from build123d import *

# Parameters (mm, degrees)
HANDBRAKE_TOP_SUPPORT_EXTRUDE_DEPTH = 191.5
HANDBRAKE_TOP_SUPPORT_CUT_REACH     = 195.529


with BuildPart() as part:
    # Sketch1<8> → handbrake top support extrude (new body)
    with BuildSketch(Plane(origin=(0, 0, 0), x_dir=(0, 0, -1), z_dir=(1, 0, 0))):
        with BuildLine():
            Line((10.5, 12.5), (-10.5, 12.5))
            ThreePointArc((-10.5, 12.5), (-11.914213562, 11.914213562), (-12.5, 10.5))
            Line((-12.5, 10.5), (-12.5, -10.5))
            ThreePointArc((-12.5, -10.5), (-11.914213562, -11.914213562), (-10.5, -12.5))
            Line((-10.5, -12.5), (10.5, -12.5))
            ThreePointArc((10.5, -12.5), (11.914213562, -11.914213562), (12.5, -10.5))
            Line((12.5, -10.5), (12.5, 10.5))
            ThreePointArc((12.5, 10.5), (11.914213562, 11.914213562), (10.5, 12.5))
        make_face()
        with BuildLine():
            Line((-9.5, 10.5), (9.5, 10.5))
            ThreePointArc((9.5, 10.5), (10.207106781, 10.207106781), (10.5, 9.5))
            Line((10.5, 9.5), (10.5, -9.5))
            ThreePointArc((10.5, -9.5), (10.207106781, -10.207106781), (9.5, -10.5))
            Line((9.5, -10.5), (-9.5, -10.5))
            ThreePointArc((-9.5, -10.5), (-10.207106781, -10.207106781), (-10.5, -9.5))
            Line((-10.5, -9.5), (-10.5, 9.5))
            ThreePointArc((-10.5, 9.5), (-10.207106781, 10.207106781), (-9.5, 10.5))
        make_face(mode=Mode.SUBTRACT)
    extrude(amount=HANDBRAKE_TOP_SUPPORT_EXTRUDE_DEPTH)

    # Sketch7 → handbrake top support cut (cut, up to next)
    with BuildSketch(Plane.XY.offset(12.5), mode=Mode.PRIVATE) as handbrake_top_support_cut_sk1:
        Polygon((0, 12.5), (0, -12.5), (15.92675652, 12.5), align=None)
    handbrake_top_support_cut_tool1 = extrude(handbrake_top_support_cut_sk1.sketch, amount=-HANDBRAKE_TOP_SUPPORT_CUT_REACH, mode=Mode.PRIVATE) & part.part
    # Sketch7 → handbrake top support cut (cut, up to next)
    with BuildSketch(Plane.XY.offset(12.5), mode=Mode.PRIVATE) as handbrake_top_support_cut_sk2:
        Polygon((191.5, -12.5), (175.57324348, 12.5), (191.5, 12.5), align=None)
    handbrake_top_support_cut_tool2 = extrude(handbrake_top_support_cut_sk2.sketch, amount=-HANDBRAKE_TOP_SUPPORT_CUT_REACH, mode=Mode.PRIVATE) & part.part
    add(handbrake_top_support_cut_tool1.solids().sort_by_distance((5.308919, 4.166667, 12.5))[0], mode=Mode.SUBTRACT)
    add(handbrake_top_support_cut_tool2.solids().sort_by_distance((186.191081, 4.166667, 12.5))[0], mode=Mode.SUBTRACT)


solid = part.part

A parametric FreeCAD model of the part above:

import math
import FreeCAD as App
import Part
import Sketcher
from FreeCAD import Vector
Q = App.Units.Quantity

doc = App.newDocument("Part")
body = doc.addObject("PartDesign::Body", "Body")

# Sketch on YZ plane
sketch1 = body.newObject("Sketcher::SketchObject", "Sketch")
sketch1.AttachmentSupport = (doc.getObject("YZ_Plane"), [""])
sketch1.MapMode = "FlatFace"
sketch1.addGeometry([
    Part.LineSegment(Vector(12.5, -10.5, 0), Vector(12.5, 10.5, 0)),  # 0
    Part.ArcOfCircle(Part.Circle(Vector(10.5, 10.5, 0), Vector(0, 0, 1), 2), math.radians(0), math.radians(90)),  # 1
    Part.LineSegment(Vector(10.5, 12.5, 0), Vector(-10.5, 12.5, 0)),  # 2
    Part.ArcOfCircle(Part.Circle(Vector(-10.5, 10.5, 0), Vector(0, 0, 1), 2), math.radians(90), math.radians(180)),  # 3
    Part.LineSegment(Vector(-12.5, 10.5, 0), Vector(-12.5, -10.5, 0)),  # 4
    Part.ArcOfCircle(Part.Circle(Vector(-10.5, -10.5, 0), Vector(0, 0, 1), 2), math.radians(-180), math.radians(-90)),  # 5
    Part.LineSegment(Vector(-10.5, -12.5, 0), Vector(10.5, -12.5, 0)),  # 6
    Part.ArcOfCircle(Part.Circle(Vector(10.5, -10.5, 0), Vector(0, 0, 1), 2), math.radians(-90), math.radians(0)),  # 7
    Part.ArcOfCircle(Part.Circle(Vector(9.5, 9.5, 0), Vector(0, 0, 1), 1), math.radians(0), math.radians(90)),  # 8
    Part.LineSegment(Vector(10.5, 9.5, 0), Vector(10.5, -9.5, 0)),  # 9
    Part.ArcOfCircle(Part.Circle(Vector(9.5, -9.5, 0), Vector(0, 0, 1), 1), math.radians(-90), math.radians(0)),  # 10
    Part.LineSegment(Vector(9.5, -10.5, 0), Vector(-9.5, -10.5, 0)),  # 11
    Part.ArcOfCircle(Part.Circle(Vector(-9.5, -9.5, 0), Vector(0, 0, 1), 1), math.radians(-180), math.radians(-90)),  # 12
    Part.LineSegment(Vector(-10.5, -9.5, 0), Vector(-10.5, 9.5, 0)),  # 13
    Part.ArcOfCircle(Part.Circle(Vector(-9.5, 9.5, 0), Vector(0, 0, 1), 1), math.radians(90), math.radians(180)),  # 14
    Part.LineSegment(Vector(-9.5, 10.5, 0), Vector(9.5, 10.5, 0)),  # 15
], False)
sketch1.addConstraint([
    Sketcher.Constraint("Tangent", 0, 2, 1, 1),
    Sketcher.Constraint("Tangent", 1, 2, 2, 1),
    Sketcher.Constraint("Tangent", 2, 2, 3, 1),
    Sketcher.Constraint("Tangent", 3, 2, 4, 1),
    Sketcher.Constraint("Tangent", 4, 2, 5, 1),
    Sketcher.Constraint("Tangent", 5, 2, 6, 1),
    Sketcher.Constraint("Tangent", 6, 2, 7, 1),
    Sketcher.Constraint("Tangent", 7, 2, 0, 1),
    Sketcher.Constraint("Tangent", 8, 1, 9, 1),
    Sketcher.Constraint("Tangent", 9, 2, 10, 2),
    Sketcher.Constraint("Tangent", 10, 1, 11, 1),
    Sketcher.Constraint("Tangent", 11, 2, 12, 2),
    Sketcher.Constraint("Tangent", 12, 1, 13, 1),
    Sketcher.Constraint("Tangent", 13, 2, 14, 2),
    Sketcher.Constraint("Tangent", 14, 1, 15, 1),
    Sketcher.Constraint("Tangent", 15, 2, 8, 2),
    Sketcher.Constraint("Vertical", 0),
    Sketcher.Constraint("Horizontal", 2),
    Sketcher.Constraint("Vertical", 4),
    Sketcher.Constraint("Horizontal", 6),
    Sketcher.Constraint("Vertical", 9),
    Sketcher.Constraint("Horizontal", 11),
    Sketcher.Constraint("Vertical", 13),
    Sketcher.Constraint("Horizontal", 15),
    Sketcher.Constraint("Equal", 1, 3),
    Sketcher.Constraint("Equal", 3, 5),
    Sketcher.Constraint("Equal", 5, 7),
    Sketcher.Constraint("Equal", 8, 10),
    Sketcher.Constraint("Equal", 10, 12),
    Sketcher.Constraint("Equal", 12, 14),
    Sketcher.Constraint("Symmetric", 1, 3, 5, 3, -1, 1),
    Sketcher.Constraint("Symmetric", 8, 3, 12, 3, -1, 1),
    Sketcher.Constraint("Horizontal", 7, 2, 10, 1),
    Sketcher.Constraint("Vertical", 6, 2, 8, 1),
    Sketcher.Constraint("Equal", 6, 0),
    Sketcher.Constraint("Radius", 1, Q("2 mm")),
    Sketcher.Constraint("Radius", 8, Q("1 mm")),
    Sketcher.Constraint("DistanceX", 2, 2, 2, 1, Q("21 mm")),
])
pad1 = body.newObject("PartDesign::Pad", "Pad")
pad1.Profile = sketch1
pad1.Length = 191.5

# Sketch on XY plane
sketch2 = body.newObject("Sketcher::SketchObject", "Sketch001")
sketch2.AttachmentSupport = (doc.getObject("XY_Plane"), [""])
sketch2.MapMode = "FlatFace"
sketch2.AttachmentOffset = App.Placement(Vector(0, 0, 12.5), App.Rotation())
sketch2.addGeometry([
    Part.LineSegment(Vector(0, 12, 0), Vector(0, -12, 0)),
    Part.LineSegment(Vector(0, -12, 0), Vector(16, 12, 0)),
    Part.LineSegment(Vector(16, 12, 0), Vector(0, 12, 0)),
], False)
sketch2.addConstraint([
    Sketcher.Constraint("Coincident", 0, 2, 1, 1),
    Sketcher.Constraint("Coincident", 1, 2, 2, 1),
    Sketcher.Constraint("Coincident", 2, 2, 0, 1),
    Sketcher.Constraint("Vertical", 0),
    Sketcher.Constraint("Horizontal", 2),
    Sketcher.Constraint("Symmetric", 0, 2, 2, 2, -1, 1),
    Sketcher.Constraint("DistanceY", 0, 2, 0, 1, Q("25 mm")),
    Sketcher.Constraint("Angle", 1, Q("57.5 deg")),
])
pocket1 = body.newObject("PartDesign::Pocket", "Pocket")
pocket1.Profile = sketch2
pocket1.Length = 25

# Sketch on XY plane
sketch3 = body.newObject("Sketcher::SketchObject", "Sketch002")
sketch3.AttachmentSupport = (doc.getObject("XY_Plane"), [""])
sketch3.MapMode = "FlatFace"
sketch3.AttachmentOffset = App.Placement(Vector(0, 0, 12.5), App.Rotation())
sketch3.addGeometry([
    Part.LineSegment(Vector(176, 12, 0), Vector(192, -12, 0)),
    Part.LineSegment(Vector(192, -12, 0), Vector(192, 12, 0)),
    Part.LineSegment(Vector(192, 12, 0), Vector(176, 12, 0)),
], False)
sketch3.addConstraint([
    Sketcher.Constraint("Coincident", 0, 2, 1, 1),
    Sketcher.Constraint("Coincident", 1, 2, 2, 1),
    Sketcher.Constraint("Coincident", 2, 2, 0, 1),
    Sketcher.Constraint("Vertical", 1),
    Sketcher.Constraint("Horizontal", 2),
    Sketcher.Constraint("DistanceY", 1, 1, 1, 2, Q("25 mm")),
    Sketcher.Constraint("Angle", 0, Q("-57.5 deg")),
    Sketcher.Constraint("DistanceX", -1, 1, 0, 2, Q("191.5 mm")),
    Sketcher.Constraint("DistanceY", 0, 2, -1, 1, Q("12.5 mm")),
])
pocket2 = body.newObject("PartDesign::Pocket", "Pocket001")
pocket2.Profile = sketch3
pocket2.Length = 25

doc.recompute()
